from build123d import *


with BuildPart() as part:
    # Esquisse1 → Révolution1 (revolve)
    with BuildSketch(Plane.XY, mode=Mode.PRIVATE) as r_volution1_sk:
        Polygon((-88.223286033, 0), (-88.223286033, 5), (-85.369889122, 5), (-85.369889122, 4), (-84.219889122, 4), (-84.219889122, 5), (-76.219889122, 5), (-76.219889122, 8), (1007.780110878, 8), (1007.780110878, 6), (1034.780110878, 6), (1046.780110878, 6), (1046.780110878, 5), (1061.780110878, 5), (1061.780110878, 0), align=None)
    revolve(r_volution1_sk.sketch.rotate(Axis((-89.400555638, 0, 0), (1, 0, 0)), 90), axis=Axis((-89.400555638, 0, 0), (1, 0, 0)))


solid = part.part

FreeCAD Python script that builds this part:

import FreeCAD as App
import Part
import Sketcher

V = App.Vector
Q = App.Units.Quantity

doc = App.newDocument("Part")
params = doc.addObject("Spreadsheet::Sheet", "Params")
for row, (alias, value) in enumerate([
    ("sketch1_width", "15 mm"),
    ("sketch1_width2", "39 mm"),
    ("sketch1_width3", "1084 mm"),
    ("sketch1_width4", "8 mm"),
    ("sketch1_height", "5 mm"),
    ("revolution_angle", "360 deg"),
], start=1):
    params.set(f"A{row}", alias)
    params.set(f"B{row}", "=" + value)
    params.setAlias(f"B{row}", alias)

body = doc.addObject("PartDesign::Body", "Body")

sketch1 = body.newObject("Sketcher::SketchObject", "Sketch")
sketch1.AttachmentSupport = (doc.getObject("XY_Plane"), [""])
sketch1.MapMode = "FlatFace"
sketch1.addGeometry(Part.LineSegment(V(-88.223286, 5, 0), V(-88.223286, 0, 0)), False)
sketch1.addGeometry(Part.LineSegment(V(-88.223286, 0, 0), V(1061.780111, 0, 0)), False)
sketch1.addGeometry(Part.LineSegment(V(1061.780111, 0, 0), V(1061.780111, 5, 0)), False)
sketch1.addGeometry(Part.LineSegment(V(1061.780111, 5, 0), V(1046.780111, 5, 0)), False)
sketch1.addGeometry(Part.LineSegment(V(1046.780111, 5, 0), V(1046.780111, 6, 0)), False)
sketch1.addGeometry(Part.LineSegment(V(1046.780111, 6, 0), V(1007.780111, 6, 0)), False)
sketch1.addGeometry(Part.LineSegment(V(1007.780111, 6, 0), V(1007.780111, 8, 0)), False)
sketch1.addGeometry(Part.LineSegment(V(1007.780111, 8, 0), V(-76.219889, 8, 0)), False)
sketch1.addGeometry(Part.LineSegment(V(-76.219889, 8, 0), V(-76.219889, 5, 0)), False)
sketch1.addGeometry(Part.LineSegment(V(-76.219889, 5, 0), V(-84.219889, 5, 0)), False)
sketch1.addGeometry(Part.LineSegment(V(-84.219889, 5, 0), V(-84.219889, 4, 0)), False)
sketch1.addGeometry(Part.LineSegment(V(-84.219889, 4, 0), V(-85.369889, 4, 0)), False)
sketch1.addGeometry(Part.LineSegment(V(-85.369889, 4, 0), V(-85.369889, 5, 0)), False)
sketch1.addGeometry(Part.LineSegment(V(-85.369889, 5, 0), V(-88.223286, 5, 0)), False)
sketch1.addConstraint(Sketcher.Constraint("Coincident", 0, 2, 1, 1))
sketch1.addConstraint(Sketcher.Constraint("Coincident", 1, 2, 2, 1))
sketch1.addConstraint(Sketcher.Constraint("Coincident", 2, 2, 3, 1))
sketch1.addConstraint(Sketcher.Constraint("Coincident", 3, 2, 4, 1))
sketch1.addConstraint(Sketcher.Constraint("Coincident", 4, 2, 5, 1))
sketch1.addConstraint(Sketcher.Constraint("Coincident", 5, 2, 6, 1))
sketch1.addConstraint(Sketcher.Constraint("Coincident", 6, 2, 7, 1))
sketch1.addConstraint(Sketcher.Constraint("Coincident", 7, 2, 8, 1))
sketch1.addConstraint(Sketcher.Constraint("Coincident", 8, 2, 9, 1))
sketch1.addConstraint(Sketcher.Constraint("Coincident", 9, 2, 10, 1))
sketch1.addConstraint(Sketcher.Constraint("Coincident", 10, 2, 11, 1))
sketch1.addConstraint(Sketcher.Constraint("Coincident", 11, 2, 12, 1))
sketch1.addConstraint(Sketcher.Constraint("Coincident", 12, 2, 13, 1))
sketch1.addConstraint(Sketcher.Constraint("Coincident", 13, 2, 0, 1))
sketch1.addConstraint(Sketcher.Constraint("Vertical", 0))
sketch1.addConstraint(Sketcher.Constraint("Horizontal", 1))
sketch1.addConstraint(Sketcher.Constraint("Vertical", 2))
sketch1.addConstraint(Sketcher.Constraint("Horizontal", 3))
sketch1.addConstraint(Sketcher.Constraint("Vertical", 4))
sketch1.addConstraint(Sketcher.Constraint("Horizontal", 5))
sketch1.addConstraint(Sketcher.Constraint("Vertical", 6))
sketch1.addConstraint(Sketcher.Constraint("Horizontal", 7))
sketch1.addConstraint(Sketcher.Constraint("Vertical", 8))
sketch1.addConstraint(Sketcher.Constraint("Horizontal", 9))
sketch1.addConstraint(Sketcher.Constraint("Vertical", 10))
sketch1.addConstraint(Sketcher.Constraint("Horizontal", 11))
sketch1.addConstraint(Sketcher.Constraint("Vertical", 12))
sketch1.addConstraint(Sketcher.Constraint("Horizontal", 13))
sketch1.addConstraint(Sketcher.Constraint("PointOnObject", 0, 2, -1))
sketch1.addConstraint(Sketcher.Constraint("Horizontal", 3, 2, 8, 2))
sketch1.addConstraint(Sketcher.Constraint("Horizontal", 9, 2, 12, 2))
sketch1.addConstraint(Sketcher.Constraint("Equal", 4, 10))
sketch1.addConstraint(Sketcher.Constraint("DistanceX", 3, 2, 3, 1, Q("15 mm")))
sketch1.addConstraint(Sketcher.Constraint("DistanceX", 5, 2, 5, 1, Q("39 mm")))
sketch1.addConstraint(Sketcher.Constraint("DistanceX", 7, 2, 7, 1, Q("1084 mm")))
sketch1.addConstraint(Sketcher.Constraint("DistanceX", 9, 2, 9, 1, Q("8 mm")))
sketch1.addConstraint(Sketcher.Constraint("DistanceY", 0, 2, 0, 1, Q("5 mm")))
sketch1.addConstraint(Sketcher.Constraint("DistanceY", 4, 1, 4, 2, Q("1 mm")))
sketch1.addConstraint(Sketcher.Constraint("DistanceY", 6, 1, 6, 2, Q("2 mm")))
sketch1.addConstraint(Sketcher.Constraint("DistanceX", 11, 2, 11, 1, Q("1.15 mm")))
sketch1.addConstraint(Sketcher.Constraint("DistanceX", 1, 1, 1, 2, Q("1150.003397 mm")))
sketch1.addConstraint(Sketcher.Constraint("DistanceX", -1, 1, 1, 2, Q("1061.780111 mm")))
sketch1.setExpression("Constraints[32]", "Params.sketch1_width")
sketch1.setExpression("Constraints[33]", "Params.sketch1_width2")
sketch1.setExpression("Constraints[34]", "Params.sketch1_width3")
sketch1.setExpression("Constraints[35]", "Params.sketch1_width4")
sketch1.setExpression("Constraints[36]", "Params.sketch1_height")
revolution = body.newObject("PartDesign::Revolution", "Revolution")
revolution.Profile = sketch1
revolution.ReferenceAxis = (sketch1, ["H_Axis"])
revolution.setExpression("Angle", "Params.revolution_angle")

doc.recompute()
